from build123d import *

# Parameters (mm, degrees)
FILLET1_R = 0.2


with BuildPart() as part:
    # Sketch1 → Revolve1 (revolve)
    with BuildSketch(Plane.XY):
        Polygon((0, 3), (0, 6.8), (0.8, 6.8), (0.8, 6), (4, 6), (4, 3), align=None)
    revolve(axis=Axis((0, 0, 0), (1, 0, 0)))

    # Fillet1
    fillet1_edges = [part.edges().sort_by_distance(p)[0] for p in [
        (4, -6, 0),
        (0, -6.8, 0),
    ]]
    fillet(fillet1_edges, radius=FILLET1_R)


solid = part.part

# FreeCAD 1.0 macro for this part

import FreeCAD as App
import Part
import Sketcher

V = App.Vector
Q = App.Units.Quantity


def edges_at(feature, points):
    """Names of the edges that pass closest to the given points."""
    edges = feature.Shape.Edges
    near = lambda p: min(range(len(edges)), key=lambda i: edges[i].distToShape(Part.Vertex(*p))[0])
    return sorted({f"Edge{near(p) + 1}" for p in points})

doc = App.newDocument("Part")
body = doc.addObject("PartDesign::Body", "Body")

# Sketch on XY plane
sketch1 = body.newObject("Sketcher::SketchObject", "Sketch")
sketch1.AttachmentSupport = (doc.getObject("XY_Plane"), [""])
sketch1.MapMode = "FlatFace"
sketch1.addGeometry([
    Part.LineSegment(V(0, 6.8, 0), V(0, 3, 0)),  # 0
    Part.LineSegment(V(0, 3, 0), V(4, 3, 0)),  # 1
    Part.LineSegment(V(4, 3, 0), V(4, 6, 0)),  # 2
    Part.LineSegment(V(4, 6, 0), V(0.8, 6, 0)),  # 3
    Part.LineSegment(V(0.8, 6, 0), V(0.8, 6.8, 0)),  # 4
    Part.LineSegment(V(0.8, 6.8, 0), V(0, 6.8, 0)),  # 5
], False)
sketch1.addConstraint([
    Sketcher.Constraint("Coincident", 0, 2, 1, 1),
    Sketcher.Constraint("Coincident", 1, 2, 2, 1),
    Sketcher.Constraint("Coincident", 2, 2, 3, 1),
    Sketcher.Constraint("Coincident", 3, 2, 4, 1),
    Sketcher.Constraint("Coincident", 4, 2, 5, 1),
    Sketcher.Constraint("Coincident", 5, 2, 0, 1),
    Sketcher.Constraint("Vertical", 0),
    Sketcher.Constraint("Horizontal", 1),
    Sketcher.Constraint("Vertical", 2),
    Sketcher.Constraint("Horizontal", 3),
    Sketcher.Constraint("Vertical", 4),
    Sketcher.Constraint("Horizontal", 5),
    Sketcher.Constraint("PointOnObject", 0, 2, -2),
    Sketcher.Constraint("Equal", 5, 4),
    Sketcher.Constraint("DistanceX", 1, 1, 1, 2, Q("4 mm")),
    Sketcher.Constraint("DistanceY", 2, 1, 2, 2, Q("3 mm")),
    Sketcher.Constraint("DistanceX", 3, 2, 3, 1, Q("3.2 mm")),
    Sketcher.Constraint("DistanceY", -1, 1, 0, 2, Q("3 mm")),
])
revolution = body.newObject("PartDesign::Revolution", "Revolution")
revolution.Profile = sketch1
revolution.ReferenceAxis = (sketch1, ["H_Axis"])
revolution.Angle = 360
doc.recompute()

fillet = body.newObject("PartDesign::Fillet", "Fillet")
fillet.Base = (revolution, edges_at(revolution, [(4, -6, 0), (0, -6.8, 0)]))
fillet.Radius = 0.2

doc.recompute()
